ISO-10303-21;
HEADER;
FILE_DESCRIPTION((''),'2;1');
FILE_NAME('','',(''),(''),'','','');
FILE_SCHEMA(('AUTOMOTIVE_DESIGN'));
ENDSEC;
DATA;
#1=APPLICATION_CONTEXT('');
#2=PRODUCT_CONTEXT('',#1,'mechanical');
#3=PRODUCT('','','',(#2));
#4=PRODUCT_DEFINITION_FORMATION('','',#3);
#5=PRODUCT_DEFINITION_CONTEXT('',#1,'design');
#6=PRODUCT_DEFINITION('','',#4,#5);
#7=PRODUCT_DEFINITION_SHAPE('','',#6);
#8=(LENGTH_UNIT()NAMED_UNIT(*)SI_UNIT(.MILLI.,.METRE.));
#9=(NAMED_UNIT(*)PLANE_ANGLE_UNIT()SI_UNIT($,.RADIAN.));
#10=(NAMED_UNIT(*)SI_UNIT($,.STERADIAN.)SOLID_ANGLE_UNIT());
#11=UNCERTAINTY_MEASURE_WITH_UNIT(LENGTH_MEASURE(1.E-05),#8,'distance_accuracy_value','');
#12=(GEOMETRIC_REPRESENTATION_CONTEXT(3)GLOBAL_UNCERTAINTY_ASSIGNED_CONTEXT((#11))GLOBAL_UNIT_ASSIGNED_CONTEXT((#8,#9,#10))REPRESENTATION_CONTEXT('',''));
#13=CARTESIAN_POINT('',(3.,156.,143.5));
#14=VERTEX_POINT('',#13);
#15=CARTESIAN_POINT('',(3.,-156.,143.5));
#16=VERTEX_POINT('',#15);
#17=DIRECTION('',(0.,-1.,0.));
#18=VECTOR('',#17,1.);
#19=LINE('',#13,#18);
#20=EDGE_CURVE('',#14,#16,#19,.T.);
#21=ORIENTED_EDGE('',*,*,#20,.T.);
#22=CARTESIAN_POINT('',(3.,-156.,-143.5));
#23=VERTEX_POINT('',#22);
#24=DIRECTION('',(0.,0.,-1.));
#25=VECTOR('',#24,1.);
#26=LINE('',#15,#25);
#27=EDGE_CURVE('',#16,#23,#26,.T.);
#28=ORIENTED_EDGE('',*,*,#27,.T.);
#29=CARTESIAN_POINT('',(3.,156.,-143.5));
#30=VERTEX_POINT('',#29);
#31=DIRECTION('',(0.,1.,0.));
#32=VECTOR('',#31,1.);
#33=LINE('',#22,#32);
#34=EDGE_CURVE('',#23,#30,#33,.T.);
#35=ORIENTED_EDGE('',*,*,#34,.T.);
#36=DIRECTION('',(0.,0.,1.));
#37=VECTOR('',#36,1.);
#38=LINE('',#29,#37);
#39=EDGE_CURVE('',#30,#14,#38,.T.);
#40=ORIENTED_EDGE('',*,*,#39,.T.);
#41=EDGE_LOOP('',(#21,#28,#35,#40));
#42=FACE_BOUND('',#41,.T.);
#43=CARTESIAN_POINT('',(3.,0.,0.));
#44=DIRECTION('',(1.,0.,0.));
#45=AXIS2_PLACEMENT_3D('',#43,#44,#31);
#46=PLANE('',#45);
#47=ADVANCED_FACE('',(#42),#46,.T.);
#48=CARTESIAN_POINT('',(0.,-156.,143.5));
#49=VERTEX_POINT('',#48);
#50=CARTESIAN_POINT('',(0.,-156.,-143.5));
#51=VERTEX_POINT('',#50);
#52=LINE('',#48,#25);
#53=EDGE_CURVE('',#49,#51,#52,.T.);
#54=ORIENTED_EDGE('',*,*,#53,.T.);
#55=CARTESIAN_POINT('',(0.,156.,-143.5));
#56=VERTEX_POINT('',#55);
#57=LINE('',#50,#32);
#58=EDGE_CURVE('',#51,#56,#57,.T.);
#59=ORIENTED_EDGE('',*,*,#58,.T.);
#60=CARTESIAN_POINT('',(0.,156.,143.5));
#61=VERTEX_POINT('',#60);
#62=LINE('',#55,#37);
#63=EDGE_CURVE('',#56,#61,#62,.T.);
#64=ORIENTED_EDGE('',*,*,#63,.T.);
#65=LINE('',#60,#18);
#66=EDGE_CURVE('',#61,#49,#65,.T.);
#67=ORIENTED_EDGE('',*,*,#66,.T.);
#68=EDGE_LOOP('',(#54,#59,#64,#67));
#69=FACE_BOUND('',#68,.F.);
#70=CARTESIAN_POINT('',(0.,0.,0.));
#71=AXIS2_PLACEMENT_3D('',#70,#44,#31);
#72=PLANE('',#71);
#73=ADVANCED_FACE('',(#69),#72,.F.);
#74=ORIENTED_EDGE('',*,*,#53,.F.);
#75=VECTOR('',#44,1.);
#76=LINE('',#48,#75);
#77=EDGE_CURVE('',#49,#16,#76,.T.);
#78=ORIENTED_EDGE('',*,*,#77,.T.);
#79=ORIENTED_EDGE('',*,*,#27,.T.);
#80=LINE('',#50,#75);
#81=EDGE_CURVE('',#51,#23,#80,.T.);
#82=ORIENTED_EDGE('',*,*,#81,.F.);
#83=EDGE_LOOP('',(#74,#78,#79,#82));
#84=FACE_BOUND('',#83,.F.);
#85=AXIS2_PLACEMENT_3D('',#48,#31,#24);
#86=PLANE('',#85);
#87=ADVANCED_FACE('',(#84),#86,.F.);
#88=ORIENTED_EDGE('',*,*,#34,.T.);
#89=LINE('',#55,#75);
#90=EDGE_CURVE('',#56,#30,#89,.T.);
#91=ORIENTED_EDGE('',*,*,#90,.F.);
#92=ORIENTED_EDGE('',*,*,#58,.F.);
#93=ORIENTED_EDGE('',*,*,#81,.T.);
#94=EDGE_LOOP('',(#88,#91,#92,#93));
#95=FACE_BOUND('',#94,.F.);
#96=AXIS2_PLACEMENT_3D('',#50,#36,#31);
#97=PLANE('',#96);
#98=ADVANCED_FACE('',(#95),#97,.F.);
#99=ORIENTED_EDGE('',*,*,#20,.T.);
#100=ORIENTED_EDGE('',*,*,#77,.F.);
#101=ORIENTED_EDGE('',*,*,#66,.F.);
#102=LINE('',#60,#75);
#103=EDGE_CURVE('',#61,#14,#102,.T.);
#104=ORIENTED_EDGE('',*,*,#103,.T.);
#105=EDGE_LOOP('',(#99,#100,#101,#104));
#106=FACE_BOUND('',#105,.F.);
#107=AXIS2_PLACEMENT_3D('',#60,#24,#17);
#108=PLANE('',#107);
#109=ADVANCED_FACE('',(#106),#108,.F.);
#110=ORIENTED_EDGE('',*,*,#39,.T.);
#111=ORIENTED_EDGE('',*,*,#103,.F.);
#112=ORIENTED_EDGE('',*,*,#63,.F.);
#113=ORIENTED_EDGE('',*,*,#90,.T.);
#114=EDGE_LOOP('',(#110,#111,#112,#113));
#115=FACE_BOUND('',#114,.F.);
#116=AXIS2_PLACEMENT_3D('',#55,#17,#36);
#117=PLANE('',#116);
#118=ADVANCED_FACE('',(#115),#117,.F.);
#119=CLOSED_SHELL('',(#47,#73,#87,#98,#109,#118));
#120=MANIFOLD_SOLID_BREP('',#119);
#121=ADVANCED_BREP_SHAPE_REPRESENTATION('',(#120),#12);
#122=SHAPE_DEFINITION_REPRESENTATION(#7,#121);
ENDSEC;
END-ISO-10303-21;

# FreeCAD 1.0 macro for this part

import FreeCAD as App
import Part
import Sketcher


def add_polygon(sketch, points):
    """Adds a closed chain of lines whose ends are joined by coincident constraints."""
    first, n = sketch.GeometryCount, len(points)
    for a, b in zip(points, points[1:] + points[:1]):
        sketch.addGeometry(Part.LineSegment(App.Vector(*a, 0), App.Vector(*b, 0)), False)
    for i in range(n):
        sketch.addConstraint(Sketcher.Constraint("Coincident", first + i, 2, first + (i + 1) % n, 1))

doc = App.newDocument("Part")
params = doc.addObject("Spreadsheet::Sheet", "Params")
for row, (alias, value) in enumerate([
    ("sketch1_width", "312 mm"),
    ("sketch1_height", "287 mm"),
    ("pad1_length", "3 mm"),
], start=1):
    params.set(f"A{row}", alias)
    params.set(f"B{row}", "=" + value)
    params.setAlias(f"B{row}", alias)

body = doc.addObject("PartDesign::Body", "Body")

sketch1 = body.newObject("Sketcher::SketchObject", "Sketch")
sketch1.AttachmentSupport = (doc.getObject("YZ_Plane"), [""])
sketch1.MapMode = "FlatFace"
add_polygon(sketch1, [(156, -143.5), (156, 143.5), (-156, 143.5), (-156, -143.5)])
sketch1.addConstraint(Sketcher.Constraint("Vertical", 0))
sketch1.addConstraint(Sketcher.Constraint("Horizontal", 1))
sketch1.addConstraint(Sketcher.Constraint("Vertical", 2))
sketch1.addConstraint(Sketcher.Constraint("Horizontal", 3))
sketch1.addConstraint(Sketcher.Constraint("Symmetric", 0, 2, 2, 2, -1, 1))
sketch1.addConstraint(Sketcher.Constraint("DistanceX", 1, 2, 1, 1, 312.0))
sketch1.addConstraint(Sketcher.Constraint("DistanceY", 0, 1, 0, 2, 287.0))
sketch1.setExpression("Constraints[9]", "Params.sketch1_width")
sketch1.setExpression("Constraints[10]", "Params.sketch1_height")
pad1 = body.newObject("PartDesign::Pad", "Pad")
pad1.Profile = sketch1
pad1.setExpression("Length", "Params.pad1_length")

doc.recompute()
